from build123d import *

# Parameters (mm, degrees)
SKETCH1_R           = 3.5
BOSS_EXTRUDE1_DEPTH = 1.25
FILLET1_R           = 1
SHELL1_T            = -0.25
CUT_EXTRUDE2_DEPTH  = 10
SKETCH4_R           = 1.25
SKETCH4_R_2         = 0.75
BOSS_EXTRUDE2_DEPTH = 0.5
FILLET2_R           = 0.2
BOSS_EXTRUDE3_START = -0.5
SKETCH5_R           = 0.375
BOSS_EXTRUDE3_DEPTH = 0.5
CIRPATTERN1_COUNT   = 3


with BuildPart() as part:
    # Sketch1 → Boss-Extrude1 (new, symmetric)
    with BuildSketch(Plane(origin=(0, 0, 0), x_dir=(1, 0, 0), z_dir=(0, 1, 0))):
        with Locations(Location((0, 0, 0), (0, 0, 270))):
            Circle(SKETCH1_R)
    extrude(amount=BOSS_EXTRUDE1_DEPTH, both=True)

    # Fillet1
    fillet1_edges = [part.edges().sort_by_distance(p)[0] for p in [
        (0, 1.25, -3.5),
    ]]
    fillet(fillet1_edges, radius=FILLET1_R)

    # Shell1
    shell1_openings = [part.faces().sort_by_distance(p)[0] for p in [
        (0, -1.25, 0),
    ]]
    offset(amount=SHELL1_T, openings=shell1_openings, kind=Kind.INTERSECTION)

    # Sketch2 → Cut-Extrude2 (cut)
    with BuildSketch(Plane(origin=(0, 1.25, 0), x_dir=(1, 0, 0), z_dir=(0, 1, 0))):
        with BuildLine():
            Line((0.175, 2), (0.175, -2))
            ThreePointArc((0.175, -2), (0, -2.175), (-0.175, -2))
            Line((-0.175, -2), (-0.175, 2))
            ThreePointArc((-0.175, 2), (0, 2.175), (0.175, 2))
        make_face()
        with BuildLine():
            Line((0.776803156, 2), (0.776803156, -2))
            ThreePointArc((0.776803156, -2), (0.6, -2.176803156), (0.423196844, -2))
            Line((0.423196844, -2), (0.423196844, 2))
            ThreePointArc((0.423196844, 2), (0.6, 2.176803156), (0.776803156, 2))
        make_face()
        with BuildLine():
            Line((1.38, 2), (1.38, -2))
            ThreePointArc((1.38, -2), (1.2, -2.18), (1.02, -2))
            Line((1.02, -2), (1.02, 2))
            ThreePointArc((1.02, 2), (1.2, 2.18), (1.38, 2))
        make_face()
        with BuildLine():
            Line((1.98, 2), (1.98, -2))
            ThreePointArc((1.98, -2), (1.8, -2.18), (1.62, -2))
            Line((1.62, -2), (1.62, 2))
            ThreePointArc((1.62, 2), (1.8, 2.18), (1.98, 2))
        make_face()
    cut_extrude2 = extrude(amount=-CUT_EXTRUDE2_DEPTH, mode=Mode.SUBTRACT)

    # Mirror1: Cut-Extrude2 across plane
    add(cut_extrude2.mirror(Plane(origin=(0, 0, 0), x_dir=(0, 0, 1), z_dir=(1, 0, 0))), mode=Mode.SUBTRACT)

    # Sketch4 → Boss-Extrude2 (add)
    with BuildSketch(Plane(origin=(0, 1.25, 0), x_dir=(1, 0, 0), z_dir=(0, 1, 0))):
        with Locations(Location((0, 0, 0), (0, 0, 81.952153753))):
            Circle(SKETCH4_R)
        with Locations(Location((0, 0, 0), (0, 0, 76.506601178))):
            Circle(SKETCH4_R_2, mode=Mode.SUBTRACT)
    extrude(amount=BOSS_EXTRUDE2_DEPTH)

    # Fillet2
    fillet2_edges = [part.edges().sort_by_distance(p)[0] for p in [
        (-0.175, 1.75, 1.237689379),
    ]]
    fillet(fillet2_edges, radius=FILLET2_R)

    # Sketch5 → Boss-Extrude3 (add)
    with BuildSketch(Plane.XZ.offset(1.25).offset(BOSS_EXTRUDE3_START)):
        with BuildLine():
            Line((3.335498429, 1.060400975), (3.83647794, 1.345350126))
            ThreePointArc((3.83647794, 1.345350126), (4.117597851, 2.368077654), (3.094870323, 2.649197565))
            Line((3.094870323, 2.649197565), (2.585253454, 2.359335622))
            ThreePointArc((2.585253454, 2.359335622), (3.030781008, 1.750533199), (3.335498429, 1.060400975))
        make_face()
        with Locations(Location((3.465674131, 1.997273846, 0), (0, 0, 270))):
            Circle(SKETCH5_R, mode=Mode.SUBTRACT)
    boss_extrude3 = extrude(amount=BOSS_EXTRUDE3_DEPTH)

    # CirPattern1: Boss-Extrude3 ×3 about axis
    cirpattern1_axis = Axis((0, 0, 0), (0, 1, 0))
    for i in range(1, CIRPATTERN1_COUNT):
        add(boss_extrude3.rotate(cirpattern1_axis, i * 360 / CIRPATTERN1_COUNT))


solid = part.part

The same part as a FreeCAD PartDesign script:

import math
import FreeCAD as App
import Part
import Sketcher
from FreeCAD import Vector
Q = App.Units.Quantity


def edges_at(feature, points):
    """Names of the edges that pass closest to the given points."""
    edges = feature.Shape.Edges
    near = lambda p: min(range(len(edges)), key=lambda i: edges[i].distToShape(Part.Vertex(*p))[0])
    return sorted({f"Edge{near(p) + 1}" for p in points})


def faces_at(feature, points):
    """Names of the faces that lie closest to the given points."""
    faces = feature.Shape.Faces
    near = lambda p: min(range(len(faces)), key=lambda i: faces[i].distToShape(Part.Vertex(*p))[0])
    return sorted({f"Face{near(p) + 1}" for p in points})

doc = App.newDocument("Part")
body = doc.addObject("PartDesign::Body", "Body")

sketch1 = body.newObject("Sketcher::SketchObject", "Sketch")
sketch1.AttachmentSupport = (doc.getObject("XZ_Plane"), [""])
sketch1.MapMode = "FlatFace"
sketch1.addGeometry(Part.Circle(Vector(0, 0, 0), Vector(0, 0, 1), 3.5), False)
sketch1.addConstraint(Sketcher.Constraint("Coincident", 0, 3, -1, 1))
sketch1.addConstraint(Sketcher.Constraint("Diameter", 0, Q("7 mm")))
pad1 = body.newObject("PartDesign::Pad", "Pad")
pad1.Profile = sketch1
pad1.Length = 2.5
pad1.Midplane = True
doc.recompute()

fillet = body.newObject("PartDesign::Fillet", "Fillet")
fillet.Base = (pad1, edges_at(pad1, [(0, 1.25, -3.5)]))
fillet.Radius = 1
doc.recompute()

thickness = body.newObject("PartDesign::Thickness", "Thickness")
thickness.Base = (fillet, faces_at(fillet, [(0, -1.25, 0)]))
thickness.Value = 0.25
thickness.Reversed = True
thickness.Join = "Intersection"

sketch2 = body.newObject("Sketcher::SketchObject", "Sketch001")
sketch2.AttachmentSupport = (doc.getObject("XZ_Plane"), [""])
sketch2.MapMode = "FlatFace"
sketch2.AttachmentOffset = App.Placement(Vector(0, 0, -1.25), App.Rotation())
sketch2.addGeometry(Part.LineSegment(Vector(0.175, 2, 0), Vector(0.175, -2, 0)), False)
sketch2.addGeometry(Part.ArcOfCircle(Part.Circle(Vector(0, -2, 0), Vector(0, 0, 1), 0.175), math.radians(180), math.radians(360)), False)
sketch2.addGeometry(Part.LineSegment(Vector(-0.175, -2, 0), Vector(-0.175, 2, 0)), False)
sketch2.addGeometry(Part.ArcOfCircle(Part.Circle(Vector(0, 2, 0), Vector(0, 0, 1), 0.175), math.radians(0), math.radians(180)), False)
sketch2.addGeometry(Part.LineSegment(Vector(0.776803, 2, 0), Vector(0.776803, -2, 0)), False)
sketch2.addGeometry(Part.ArcOfCircle(Part.Circle(Vector(0.6, -2, 0), Vector(0, 0, 1), 0.176803), math.radians(180), math.radians(360)), False)
sketch2.addGeometry(Part.LineSegment(Vector(0.423197, -2, 0), Vector(0.423197, 2, 0)), False)
sketch2.addGeometry(Part.ArcOfCircle(Part.Circle(Vector(0.6, 2, 0), Vector(0, 0, 1), 0.176803), math.radians(0), math.radians(180)), False)
sketch2.addGeometry(Part.LineSegment(Vector(1.38, 2, 0), Vector(1.38, -2, 0)), False)
sketch2.addGeometry(Part.ArcOfCircle(Part.Circle(Vector(1.2, -2, 0), Vector(0, 0, 1), 0.18), math.radians(180), math.radians(360)), False)
sketch2.addGeometry(Part.LineSegment(Vector(1.02, -2, 0), Vector(1.02, 2, 0)), False)
sketch2.addGeometry(Part.ArcOfCircle(Part.Circle(Vector(1.2, 2, 0), Vector(0, 0, 1), 0.18), math.radians(0), math.radians(180)), False)
sketch2.addGeometry(Part.LineSegment(Vector(1.98, 2, 0), Vector(1.98, -2, 0)), False)
sketch2.addGeometry(Part.ArcOfCircle(Part.Circle(Vector(1.8, -2, 0), Vector(0, 0, 1), 0.18), math.radians(180), math.radians(360)), False)
sketch2.addGeometry(Part.LineSegment(Vector(1.62, -2, 0), Vector(1.62, 2, 0)), False)
sketch2.addGeometry(Part.ArcOfCircle(Part.Circle(Vector(1.8, 2, 0), Vector(0, 0, 1), 0.18), math.radians(0), math.radians(180)), False)
sketch2.addConstraint(Sketcher.Constraint("Tangent", 0, 2, 1, 2))
sketch2.addConstraint(Sketcher.Constraint("Tangent", 1, 1, 2, 1))
sketch2.addConstraint(Sketcher.Constraint("Tangent", 2, 2, 3, 2))
sketch2.addConstraint(Sketcher.Constraint("Tangent", 3, 1, 0, 1))
sketch2.addConstraint(Sketcher.Constraint("Tangent", 4, 2, 5, 2))
sketch2.addConstraint(Sketcher.Constraint("Tangent", 5, 1, 6, 1))
sketch2.addConstraint(Sketcher.Constraint("Tangent", 6, 2, 7, 2))
sketch2.addConstraint(Sketcher.Constraint("Tangent", 7, 1, 4, 1))
sketch2.addConstraint(Sketcher.Constraint("Tangent", 8, 2, 9, 2))
sketch2.addConstraint(Sketcher.Constraint("Tangent", 9, 1, 10, 1))
sketch2.addConstraint(Sketcher.Constraint("Tangent", 10, 2, 11, 2))
sketch2.addConstraint(Sketcher.Constraint("Tangent", 11, 1, 8, 1))
sketch2.addConstraint(Sketcher.Constraint("Tangent", 12, 2, 13, 2))
sketch2.addConstraint(Sketcher.Constraint("Tangent", 13, 1, 14, 1))
sketch2.addConstraint(Sketcher.Constraint("Tangent", 14, 2, 15, 2))
sketch2.addConstraint(Sketcher.Constraint("Tangent", 15, 1, 12, 1))
sketch2.addConstraint(Sketcher.Constraint("Vertical", 0))
sketch2.addConstraint(Sketcher.Constraint("Vertical", 2))
sketch2.addConstraint(Sketcher.Constraint("Vertical", 4))
sketch2.addConstraint(Sketcher.Constraint("Vertical", 6))
sketch2.addConstraint(Sketcher.Constraint("Vertical", 8))
sketch2.addConstraint(Sketcher.Constraint("Vertical", 10))
sketch2.addConstraint(Sketcher.Constraint("Vertical", 12))
sketch2.addConstraint(Sketcher.Constraint("Vertical", 14))
sketch2.addConstraint(Sketcher.Constraint("Equal", 11, 13))
sketch2.addConstraint(Sketcher.Constraint("Symmetric", 1, 3, 3, 3, -1, 1))
sketch2.addConstraint(Sketcher.Constraint("Horizontal", 1, 3, 5, 3))
sketch2.addConstraint(Sketcher.Constraint("Horizontal", 3, 3, 7, 3))
sketch2.addConstraint(Sketcher.Constraint("Horizontal", 5, 3, 9, 3))
sketch2.addConstraint(Sketcher.Constraint("Horizontal", 7, 3, 11, 3))
sketch2.addConstraint(Sketcher.Constraint("Horizontal", 9, 3, 13, 3))
sketch2.addConstraint(Sketcher.Constraint("Horizontal", 11, 3, 15, 3))
sketch2.addConstraint(Sketcher.Constraint("DistanceY", 0, 2, 0, 1, Q("4 mm")))
sketch2.addConstraint(Sketcher.Constraint("Radius", 9, Q("0.18 mm")))
sketch2.addConstraint(Sketcher.Constraint("Radius", 1, Q("0.175 mm")))
sketch2.addConstraint(Sketcher.Constraint("DistanceX", -1, 1, 5, 3, Q("0.6 mm")))
sketch2.addConstraint(Sketcher.Constraint("DistanceX", -1, 1, 9, 3, Q("1.2 mm")))
sketch2.addConstraint(Sketcher.Constraint("DistanceX", -1, 1, 13, 3, Q("1.8 mm")))
sketch2.addConstraint(Sketcher.Constraint("Radius", 5, Q("0.176803 mm")))
pocket1 = body.newObject("PartDesign::Pocket", "Pocket")
pocket1.Profile = sketch2
pocket1.Length = 10
pocket1.Reversed = True
doc.recompute()

mirrored = body.newObject("PartDesign::Mirrored", "Mirrored")
mirrored.Originals = [pocket1]
mirrored.MirrorPlane = (doc.getObject("YZ_Plane"), [""])
body.Tip = mirrored

sketch3 = body.newObject("Sketcher::SketchObject", "Sketch002")
sketch3.AttachmentSupport = (doc.getObject("XZ_Plane"), [""])
sketch3.MapMode = "FlatFace"
sketch3.AttachmentOffset = App.Placement(Vector(0, 0, -1.25), App.Rotation())
sketch3.addGeometry(Part.Circle(Vector(0, 0, 0), Vector(0, 0, 1), 1.25), False)
sketch3.addGeometry(Part.Circle(Vector(0, 0, 0), Vector(0, 0, 1), 0.75), False)
sketch3.addConstraint(Sketcher.Constraint("Coincident", 0, 3, -1, 1))
sketch3.addConstraint(Sketcher.Constraint("Coincident", 1, 3, -1, 1))
sketch3.addConstraint(Sketcher.Constraint("Diameter", 0, Q("2.5 mm")))
sketch3.addConstraint(Sketcher.Constraint("Diameter", 1, Q("1.5 mm")))
pad2 = body.newObject("PartDesign::Pad", "Pad001")
pad2.Profile = sketch3
pad2.Length = 0.5
pad2.Reversed = True
doc.recompute()

fillet2 = body.newObject("PartDesign::Fillet", "Fillet001")
fillet2.Base = (pad2, edges_at(pad2, [(-0.175, 1.75, 1.238)]))
fillet2.Radius = 0.2

sketch4 = body.newObject("Sketcher::SketchObject", "Sketch003")
sketch4.AttachmentSupport = (doc.getObject("XZ_Plane"), [""])
sketch4.MapMode = "FlatFace"
sketch4.AttachmentOffset = App.Placement(Vector(0, 0, 0.75), App.Rotation())
sketch4.addGeometry(Part.LineSegment(Vector(3.335498, 1.060401, 0), Vector(3.836478, 1.34535, 0)), False)
sketch4.addGeometry(Part.ArcOfCircle(Part.Circle(Vector(3.465674, 1.997274, 0), Vector(0, 0, 1), 0.75), math.radians(-60.369472), math.radians(119.630528)), False)
sketch4.addGeometry(Part.LineSegment(Vector(3.09487, 2.649198, 0), Vector(2.585253, 2.359336, 0)), False)
sketch4.addGeometry(Part.ArcOfCircle(Part.Circle(Vector(0, 0, 0), Vector(0, 0, 1), 3.5), math.radians(17.636178), math.radians(42.38398)), False)
sketch4.addGeometry(Part.Circle(Vector(3.465674, 1.997274, 0), Vector(0, 0, 1), 0.375), False)
sketch4.addConstraint(Sketcher.Constraint("Tangent", 0, 2, 1, 1))
sketch4.addConstraint(Sketcher.Constraint("Tangent", 1, 2, 2, 1))
sketch4.addConstraint(Sketcher.Constraint("Coincident", 2, 2, 3, 2))
sketch4.addConstraint(Sketcher.Constraint("Coincident", 3, 1, 0, 1))
sketch4.addConstraint(Sketcher.Constraint("Coincident", 3, 3, -1, 1))
sketch4.addConstraint(Sketcher.Constraint("Coincident", 4, 3, 1, 3))
sketch4.addConstraint(Sketcher.Constraint("Parallel", 0, 2))
sketch4.addConstraint(Sketcher.Constraint("Radius", 3, Q("3.5 mm")))
sketch4.addConstraint(Sketcher.Constraint("Diameter", 4, Q("0.75 mm")))
sketch4.addConstraint(Sketcher.Constraint("Radius", 1, Q("0.75 mm")))
sketch4.addConstraint(Sketcher.Constraint("DistanceX", -1, 1, 3, 1, Q("3.335498 mm")))
sketch4.addConstraint(Sketcher.Constraint("DistanceY", -1, 1, 0, 2, Q("1.34535 mm")))
sketch4.addConstraint(Sketcher.Constraint("DistanceX", -1, 1, 1, 2, Q("3.09487 mm")))
pad3 = body.newObject("PartDesign::Pad", "Pad002")
pad3.Profile = sketch4
pad3.Length = 0.5
doc.recompute()

polarpattern = body.newObject("PartDesign::PolarPattern", "PolarPattern")
polarpattern.Originals = [pad3]
polarpattern.Axis = (doc.getObject("Y_Axis"), [""])
polarpattern.Angle = 360
polarpattern.Occurrences = 3
body.Tip = polarpattern

doc.recompute()
